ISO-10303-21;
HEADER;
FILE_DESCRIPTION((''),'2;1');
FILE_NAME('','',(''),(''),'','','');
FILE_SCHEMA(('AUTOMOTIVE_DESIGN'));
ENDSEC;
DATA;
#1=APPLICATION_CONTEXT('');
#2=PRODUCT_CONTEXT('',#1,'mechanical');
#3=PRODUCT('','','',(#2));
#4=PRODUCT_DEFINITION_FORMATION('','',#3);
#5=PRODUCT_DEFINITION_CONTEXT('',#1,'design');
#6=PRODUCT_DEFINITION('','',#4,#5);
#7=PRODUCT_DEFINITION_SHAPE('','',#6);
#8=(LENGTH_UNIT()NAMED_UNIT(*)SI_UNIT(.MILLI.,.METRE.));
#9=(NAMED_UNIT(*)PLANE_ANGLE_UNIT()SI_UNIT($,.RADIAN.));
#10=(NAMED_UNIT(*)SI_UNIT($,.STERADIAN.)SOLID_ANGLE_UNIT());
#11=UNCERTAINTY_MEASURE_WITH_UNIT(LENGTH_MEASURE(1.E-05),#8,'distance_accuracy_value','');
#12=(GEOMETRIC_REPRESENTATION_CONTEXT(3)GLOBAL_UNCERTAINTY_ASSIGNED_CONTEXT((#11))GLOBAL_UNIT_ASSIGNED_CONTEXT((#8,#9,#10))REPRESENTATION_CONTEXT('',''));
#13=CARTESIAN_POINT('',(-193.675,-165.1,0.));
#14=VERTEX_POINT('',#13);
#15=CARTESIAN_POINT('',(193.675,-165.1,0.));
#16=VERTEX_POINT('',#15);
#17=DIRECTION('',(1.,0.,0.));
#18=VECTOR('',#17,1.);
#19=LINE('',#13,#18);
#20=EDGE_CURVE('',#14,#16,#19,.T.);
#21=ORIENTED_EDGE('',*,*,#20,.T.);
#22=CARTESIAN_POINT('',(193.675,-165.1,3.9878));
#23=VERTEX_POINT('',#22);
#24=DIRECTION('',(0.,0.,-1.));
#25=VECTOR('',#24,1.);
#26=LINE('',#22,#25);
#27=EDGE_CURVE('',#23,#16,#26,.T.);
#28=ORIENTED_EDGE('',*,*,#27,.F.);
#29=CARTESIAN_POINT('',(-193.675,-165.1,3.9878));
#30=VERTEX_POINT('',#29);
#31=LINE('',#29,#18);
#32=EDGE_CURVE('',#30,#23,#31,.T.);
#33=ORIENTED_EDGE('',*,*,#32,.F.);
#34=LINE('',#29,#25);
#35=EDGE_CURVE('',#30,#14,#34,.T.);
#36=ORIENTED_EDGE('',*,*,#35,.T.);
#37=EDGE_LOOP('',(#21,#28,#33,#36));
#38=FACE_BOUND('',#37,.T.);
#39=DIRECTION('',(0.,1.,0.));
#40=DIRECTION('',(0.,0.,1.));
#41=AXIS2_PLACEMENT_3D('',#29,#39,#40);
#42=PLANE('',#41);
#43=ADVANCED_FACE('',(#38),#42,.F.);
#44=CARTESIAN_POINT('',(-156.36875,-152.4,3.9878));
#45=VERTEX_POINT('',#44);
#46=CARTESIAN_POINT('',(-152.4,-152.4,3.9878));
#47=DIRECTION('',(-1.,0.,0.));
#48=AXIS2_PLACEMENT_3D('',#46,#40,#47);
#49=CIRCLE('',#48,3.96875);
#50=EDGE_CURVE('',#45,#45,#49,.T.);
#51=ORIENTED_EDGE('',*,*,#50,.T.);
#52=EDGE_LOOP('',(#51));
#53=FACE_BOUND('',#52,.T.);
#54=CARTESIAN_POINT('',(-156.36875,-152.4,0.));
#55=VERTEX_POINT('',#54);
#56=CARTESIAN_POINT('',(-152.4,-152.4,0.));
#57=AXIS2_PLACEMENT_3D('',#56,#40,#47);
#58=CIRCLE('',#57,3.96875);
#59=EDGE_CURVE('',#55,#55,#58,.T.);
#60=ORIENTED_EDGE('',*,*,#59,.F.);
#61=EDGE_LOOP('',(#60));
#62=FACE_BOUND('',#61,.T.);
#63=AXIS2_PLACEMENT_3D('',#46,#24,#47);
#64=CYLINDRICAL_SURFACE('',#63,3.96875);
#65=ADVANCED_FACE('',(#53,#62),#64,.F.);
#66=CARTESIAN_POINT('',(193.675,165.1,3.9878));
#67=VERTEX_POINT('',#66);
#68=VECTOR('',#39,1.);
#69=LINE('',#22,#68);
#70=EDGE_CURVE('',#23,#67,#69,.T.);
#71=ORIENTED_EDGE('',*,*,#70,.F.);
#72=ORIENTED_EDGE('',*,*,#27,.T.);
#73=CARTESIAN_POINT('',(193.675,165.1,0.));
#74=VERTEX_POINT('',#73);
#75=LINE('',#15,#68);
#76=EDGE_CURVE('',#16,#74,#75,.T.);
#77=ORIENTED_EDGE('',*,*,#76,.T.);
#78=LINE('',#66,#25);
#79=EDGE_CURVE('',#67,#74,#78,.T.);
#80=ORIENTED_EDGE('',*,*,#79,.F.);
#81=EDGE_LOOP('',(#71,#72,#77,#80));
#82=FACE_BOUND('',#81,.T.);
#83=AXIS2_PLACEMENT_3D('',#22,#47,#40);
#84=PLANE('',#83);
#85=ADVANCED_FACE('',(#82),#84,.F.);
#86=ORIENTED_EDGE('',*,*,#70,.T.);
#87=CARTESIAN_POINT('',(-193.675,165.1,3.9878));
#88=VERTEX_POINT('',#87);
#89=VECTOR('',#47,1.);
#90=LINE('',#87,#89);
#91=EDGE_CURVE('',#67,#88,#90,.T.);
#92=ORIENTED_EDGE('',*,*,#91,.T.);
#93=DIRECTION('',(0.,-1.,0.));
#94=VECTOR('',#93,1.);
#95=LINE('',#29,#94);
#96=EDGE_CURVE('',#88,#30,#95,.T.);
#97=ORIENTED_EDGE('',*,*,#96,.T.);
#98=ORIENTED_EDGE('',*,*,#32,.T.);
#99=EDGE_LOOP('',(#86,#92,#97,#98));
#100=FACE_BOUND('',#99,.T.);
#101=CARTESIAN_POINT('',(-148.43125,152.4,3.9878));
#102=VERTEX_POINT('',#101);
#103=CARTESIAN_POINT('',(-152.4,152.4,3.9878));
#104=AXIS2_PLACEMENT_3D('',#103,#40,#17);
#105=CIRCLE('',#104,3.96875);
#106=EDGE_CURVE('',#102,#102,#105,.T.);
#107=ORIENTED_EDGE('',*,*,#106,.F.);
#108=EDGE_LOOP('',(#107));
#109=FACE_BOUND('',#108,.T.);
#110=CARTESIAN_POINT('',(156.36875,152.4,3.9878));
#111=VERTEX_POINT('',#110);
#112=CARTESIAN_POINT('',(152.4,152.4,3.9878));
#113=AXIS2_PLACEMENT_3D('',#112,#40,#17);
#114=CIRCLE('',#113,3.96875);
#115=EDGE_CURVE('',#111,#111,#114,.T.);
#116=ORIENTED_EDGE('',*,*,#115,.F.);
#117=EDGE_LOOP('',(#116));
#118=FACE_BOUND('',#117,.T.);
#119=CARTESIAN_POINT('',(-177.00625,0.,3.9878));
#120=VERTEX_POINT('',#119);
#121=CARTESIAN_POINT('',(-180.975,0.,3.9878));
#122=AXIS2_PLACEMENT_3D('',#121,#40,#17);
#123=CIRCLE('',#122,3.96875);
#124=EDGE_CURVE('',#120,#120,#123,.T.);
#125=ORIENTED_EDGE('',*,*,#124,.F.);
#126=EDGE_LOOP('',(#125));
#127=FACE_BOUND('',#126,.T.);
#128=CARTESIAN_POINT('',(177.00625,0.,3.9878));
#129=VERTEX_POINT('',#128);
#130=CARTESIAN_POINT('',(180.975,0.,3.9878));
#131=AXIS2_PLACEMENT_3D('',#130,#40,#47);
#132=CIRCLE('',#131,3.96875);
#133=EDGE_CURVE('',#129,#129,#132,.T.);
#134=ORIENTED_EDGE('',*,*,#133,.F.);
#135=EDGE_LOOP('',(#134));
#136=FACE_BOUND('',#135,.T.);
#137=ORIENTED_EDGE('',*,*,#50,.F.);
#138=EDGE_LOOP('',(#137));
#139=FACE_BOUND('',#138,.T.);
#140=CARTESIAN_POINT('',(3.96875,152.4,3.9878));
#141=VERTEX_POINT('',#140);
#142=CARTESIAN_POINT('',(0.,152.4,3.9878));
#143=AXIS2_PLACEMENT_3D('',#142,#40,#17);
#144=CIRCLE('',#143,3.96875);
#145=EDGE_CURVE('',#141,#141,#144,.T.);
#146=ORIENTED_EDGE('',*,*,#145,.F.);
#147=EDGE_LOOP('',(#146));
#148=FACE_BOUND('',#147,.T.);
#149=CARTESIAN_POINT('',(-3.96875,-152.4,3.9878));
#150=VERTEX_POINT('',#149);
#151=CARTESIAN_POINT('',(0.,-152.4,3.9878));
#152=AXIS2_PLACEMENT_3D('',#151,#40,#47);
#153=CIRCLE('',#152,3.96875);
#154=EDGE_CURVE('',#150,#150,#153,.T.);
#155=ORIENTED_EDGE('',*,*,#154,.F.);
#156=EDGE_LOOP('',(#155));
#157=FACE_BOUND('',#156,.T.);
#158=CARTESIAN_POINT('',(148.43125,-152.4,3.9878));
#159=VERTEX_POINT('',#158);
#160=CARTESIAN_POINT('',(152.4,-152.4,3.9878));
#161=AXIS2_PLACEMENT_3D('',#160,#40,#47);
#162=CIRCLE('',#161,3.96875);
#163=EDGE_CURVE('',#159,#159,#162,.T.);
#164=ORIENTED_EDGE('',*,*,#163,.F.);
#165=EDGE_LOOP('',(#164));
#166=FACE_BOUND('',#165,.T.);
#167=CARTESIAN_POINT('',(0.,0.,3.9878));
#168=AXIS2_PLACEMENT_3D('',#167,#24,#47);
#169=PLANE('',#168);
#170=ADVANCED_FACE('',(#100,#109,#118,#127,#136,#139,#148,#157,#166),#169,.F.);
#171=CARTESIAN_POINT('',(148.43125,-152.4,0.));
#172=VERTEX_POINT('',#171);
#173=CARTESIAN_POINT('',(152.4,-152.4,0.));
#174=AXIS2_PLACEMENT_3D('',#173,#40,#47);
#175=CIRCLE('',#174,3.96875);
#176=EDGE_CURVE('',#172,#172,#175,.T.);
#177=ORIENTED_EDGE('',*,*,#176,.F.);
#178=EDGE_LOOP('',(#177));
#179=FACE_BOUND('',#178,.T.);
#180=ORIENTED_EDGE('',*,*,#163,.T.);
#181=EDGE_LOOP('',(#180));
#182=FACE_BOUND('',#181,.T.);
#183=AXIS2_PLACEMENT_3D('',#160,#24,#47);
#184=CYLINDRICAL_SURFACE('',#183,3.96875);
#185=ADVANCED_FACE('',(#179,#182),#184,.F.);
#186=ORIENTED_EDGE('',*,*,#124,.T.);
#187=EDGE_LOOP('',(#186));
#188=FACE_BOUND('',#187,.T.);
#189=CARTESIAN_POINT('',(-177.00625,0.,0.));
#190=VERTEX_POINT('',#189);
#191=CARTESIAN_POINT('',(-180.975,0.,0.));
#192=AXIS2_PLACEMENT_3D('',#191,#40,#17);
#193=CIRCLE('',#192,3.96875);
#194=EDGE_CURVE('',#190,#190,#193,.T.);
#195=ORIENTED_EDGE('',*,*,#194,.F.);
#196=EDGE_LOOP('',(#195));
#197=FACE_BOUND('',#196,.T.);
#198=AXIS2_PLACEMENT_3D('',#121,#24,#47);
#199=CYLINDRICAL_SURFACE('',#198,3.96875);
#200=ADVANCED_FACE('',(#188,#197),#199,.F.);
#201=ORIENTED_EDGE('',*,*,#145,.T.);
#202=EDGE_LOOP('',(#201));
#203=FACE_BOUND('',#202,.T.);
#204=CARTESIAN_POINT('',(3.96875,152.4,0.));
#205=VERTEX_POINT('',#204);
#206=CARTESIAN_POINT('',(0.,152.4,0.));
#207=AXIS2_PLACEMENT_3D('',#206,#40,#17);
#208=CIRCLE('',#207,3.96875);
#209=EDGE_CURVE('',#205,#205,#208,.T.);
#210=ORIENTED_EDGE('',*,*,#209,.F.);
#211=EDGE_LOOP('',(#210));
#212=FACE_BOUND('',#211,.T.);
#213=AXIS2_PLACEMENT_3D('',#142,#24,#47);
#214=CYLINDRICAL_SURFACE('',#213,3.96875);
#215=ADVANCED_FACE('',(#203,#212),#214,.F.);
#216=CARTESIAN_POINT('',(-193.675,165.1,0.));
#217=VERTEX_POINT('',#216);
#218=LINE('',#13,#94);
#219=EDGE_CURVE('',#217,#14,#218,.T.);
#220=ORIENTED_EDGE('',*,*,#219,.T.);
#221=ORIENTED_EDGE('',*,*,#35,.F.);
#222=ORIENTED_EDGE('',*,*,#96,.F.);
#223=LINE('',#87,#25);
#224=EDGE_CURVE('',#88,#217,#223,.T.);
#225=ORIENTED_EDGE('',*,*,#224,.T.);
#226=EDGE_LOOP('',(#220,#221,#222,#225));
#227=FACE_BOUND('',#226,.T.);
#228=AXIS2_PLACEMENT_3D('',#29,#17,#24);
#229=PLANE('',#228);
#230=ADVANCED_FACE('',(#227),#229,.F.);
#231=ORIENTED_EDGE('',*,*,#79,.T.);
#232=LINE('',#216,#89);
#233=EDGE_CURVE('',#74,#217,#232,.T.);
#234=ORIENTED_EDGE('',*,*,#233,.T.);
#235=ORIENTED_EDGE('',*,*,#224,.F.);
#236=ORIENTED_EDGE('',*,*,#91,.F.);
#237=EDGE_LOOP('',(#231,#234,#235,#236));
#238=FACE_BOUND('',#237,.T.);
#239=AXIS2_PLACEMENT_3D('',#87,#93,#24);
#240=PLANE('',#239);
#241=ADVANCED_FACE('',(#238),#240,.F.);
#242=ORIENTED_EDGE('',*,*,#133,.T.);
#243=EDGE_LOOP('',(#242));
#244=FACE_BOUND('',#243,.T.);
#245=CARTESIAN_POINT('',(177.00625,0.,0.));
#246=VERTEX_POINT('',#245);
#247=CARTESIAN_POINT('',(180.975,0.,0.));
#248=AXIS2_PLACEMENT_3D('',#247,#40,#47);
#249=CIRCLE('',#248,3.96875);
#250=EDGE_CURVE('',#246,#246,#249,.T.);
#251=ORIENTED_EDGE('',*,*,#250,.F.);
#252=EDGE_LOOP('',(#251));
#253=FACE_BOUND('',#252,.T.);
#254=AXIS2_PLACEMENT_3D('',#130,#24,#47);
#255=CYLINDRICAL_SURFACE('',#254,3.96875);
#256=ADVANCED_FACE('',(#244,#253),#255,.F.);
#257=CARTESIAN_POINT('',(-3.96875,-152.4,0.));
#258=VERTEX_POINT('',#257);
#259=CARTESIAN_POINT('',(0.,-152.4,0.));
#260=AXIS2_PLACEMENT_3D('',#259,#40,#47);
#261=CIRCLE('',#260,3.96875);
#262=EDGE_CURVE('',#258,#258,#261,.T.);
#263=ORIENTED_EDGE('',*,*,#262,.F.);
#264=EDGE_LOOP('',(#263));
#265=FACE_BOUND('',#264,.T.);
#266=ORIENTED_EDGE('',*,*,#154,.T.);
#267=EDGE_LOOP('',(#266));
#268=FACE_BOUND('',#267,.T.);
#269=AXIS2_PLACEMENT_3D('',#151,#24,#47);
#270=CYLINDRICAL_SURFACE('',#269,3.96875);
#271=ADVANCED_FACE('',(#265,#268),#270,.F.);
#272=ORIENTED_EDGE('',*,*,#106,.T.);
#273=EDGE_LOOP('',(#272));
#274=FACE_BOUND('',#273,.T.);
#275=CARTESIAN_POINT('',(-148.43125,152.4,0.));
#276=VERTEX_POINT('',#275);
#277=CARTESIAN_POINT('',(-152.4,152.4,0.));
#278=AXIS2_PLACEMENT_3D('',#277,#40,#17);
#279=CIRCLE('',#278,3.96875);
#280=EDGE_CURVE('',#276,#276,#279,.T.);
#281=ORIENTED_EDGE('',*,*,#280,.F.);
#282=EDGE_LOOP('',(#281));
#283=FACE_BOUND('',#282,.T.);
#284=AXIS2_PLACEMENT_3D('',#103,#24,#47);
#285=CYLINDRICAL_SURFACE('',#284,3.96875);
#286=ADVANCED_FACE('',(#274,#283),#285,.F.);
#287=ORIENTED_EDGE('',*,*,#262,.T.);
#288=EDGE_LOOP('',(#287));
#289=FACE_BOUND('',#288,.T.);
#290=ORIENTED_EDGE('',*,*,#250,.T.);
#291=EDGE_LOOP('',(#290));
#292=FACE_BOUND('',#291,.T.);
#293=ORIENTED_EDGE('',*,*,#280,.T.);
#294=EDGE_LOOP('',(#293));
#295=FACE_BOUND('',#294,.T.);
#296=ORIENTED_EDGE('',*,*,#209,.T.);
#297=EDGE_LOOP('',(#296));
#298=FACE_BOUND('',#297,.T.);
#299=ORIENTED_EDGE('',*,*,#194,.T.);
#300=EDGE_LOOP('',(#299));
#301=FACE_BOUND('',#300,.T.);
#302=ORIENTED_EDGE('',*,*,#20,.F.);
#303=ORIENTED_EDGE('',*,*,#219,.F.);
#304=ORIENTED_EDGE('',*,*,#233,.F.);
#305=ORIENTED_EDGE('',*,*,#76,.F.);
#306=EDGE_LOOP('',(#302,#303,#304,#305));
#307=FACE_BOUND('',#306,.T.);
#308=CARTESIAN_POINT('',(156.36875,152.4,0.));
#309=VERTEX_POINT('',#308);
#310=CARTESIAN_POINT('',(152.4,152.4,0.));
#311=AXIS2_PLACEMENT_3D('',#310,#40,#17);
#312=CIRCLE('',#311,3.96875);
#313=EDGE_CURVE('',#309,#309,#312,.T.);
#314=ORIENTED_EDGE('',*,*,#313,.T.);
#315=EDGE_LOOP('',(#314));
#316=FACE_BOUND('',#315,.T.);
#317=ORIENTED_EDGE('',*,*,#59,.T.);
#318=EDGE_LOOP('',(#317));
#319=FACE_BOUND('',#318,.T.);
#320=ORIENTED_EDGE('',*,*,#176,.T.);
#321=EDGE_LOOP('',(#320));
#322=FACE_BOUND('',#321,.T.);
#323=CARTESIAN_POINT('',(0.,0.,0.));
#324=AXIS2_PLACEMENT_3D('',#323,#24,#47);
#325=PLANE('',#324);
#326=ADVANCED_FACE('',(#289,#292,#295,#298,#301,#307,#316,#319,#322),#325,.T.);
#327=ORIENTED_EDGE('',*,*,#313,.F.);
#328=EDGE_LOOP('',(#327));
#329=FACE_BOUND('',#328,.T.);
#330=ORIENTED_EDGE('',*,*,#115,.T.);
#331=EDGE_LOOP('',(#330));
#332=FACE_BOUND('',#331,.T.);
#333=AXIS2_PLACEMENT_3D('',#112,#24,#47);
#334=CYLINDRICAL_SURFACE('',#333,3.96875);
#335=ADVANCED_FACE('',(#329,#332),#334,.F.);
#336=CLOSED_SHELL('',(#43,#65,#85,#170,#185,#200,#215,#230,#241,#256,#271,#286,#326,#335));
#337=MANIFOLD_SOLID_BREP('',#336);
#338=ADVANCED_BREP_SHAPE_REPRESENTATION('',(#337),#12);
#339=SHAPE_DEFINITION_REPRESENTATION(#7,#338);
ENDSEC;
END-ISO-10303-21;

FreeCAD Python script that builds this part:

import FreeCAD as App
import Part
import Sketcher

V = App.Vector
Q = App.Units.Quantity


def add_polygon(sketch, points):
    """Adds a closed chain of lines whose ends are joined by coincident constraints."""
    first, n = sketch.GeometryCount, len(points)
    for a, b in zip(points, points[1:] + points[:1]):
        sketch.addGeometry(Part.LineSegment(App.Vector(*a, 0), App.Vector(*b, 0)), False)
    for i in range(n):
        sketch.addConstraint(Sketcher.Constraint("Coincident", first + i, 2, first + (i + 1) % n, 1))

doc = App.newDocument("Part")
body = doc.addObject("PartDesign::Body", "Body")

sketch1 = body.newObject("Sketcher::SketchObject", "Sketch")
sketch1.AttachmentSupport = (doc.getObject("XY_Plane"), [""])
sketch1.MapMode = "FlatFace"
add_polygon(sketch1, [(-193.7, 165.1), (-193.7, -165.1), (193.7, -165.1), (193.7, 165.1)])
sketch1.addGeometry(Part.Circle(V(-152.4, -152.4, 0), V(0, 0, 1), 4), False)
sketch1.addGeometry(Part.Circle(V(0, -152.4, 0), V(0, 0, 1), 4), False)
sketch1.addGeometry(Part.Circle(V(152.4, -152.4, 0), V(0, 0, 1), 4), False)
sketch1.addGeometry(Part.Circle(V(-181, 0, 0), V(0, 0, 1), 4), False)
sketch1.addGeometry(Part.Circle(V(-152.4, 152.4, 0), V(0, 0, 1), 4), False)
sketch1.addGeometry(Part.Circle(V(181, 0, 0), V(0, 0, 1), 4), False)
sketch1.addGeometry(Part.Circle(V(0, 152.4, 0), V(0, 0, 1), 4), False)
sketch1.addGeometry(Part.Circle(V(152.4, 152.4, 0), V(0, 0, 1), 4), False)
sketch1.addConstraint(Sketcher.Constraint("Vertical", 0))
sketch1.addConstraint(Sketcher.Constraint("Horizontal", 1))
sketch1.addConstraint(Sketcher.Constraint("Vertical", 2))
sketch1.addConstraint(Sketcher.Constraint("Horizontal", 3))
sketch1.addConstraint(Sketcher.Constraint("Equal", 4, 5))
sketch1.addConstraint(Sketcher.Constraint("Equal", 5, 6))
sketch1.addConstraint(Sketcher.Constraint("Equal", 6, 7))
sketch1.addConstraint(Sketcher.Constraint("Equal", 7, 8))
sketch1.addConstraint(Sketcher.Constraint("Equal", 8, 9))
sketch1.addConstraint(Sketcher.Constraint("Equal", 9, 10))
sketch1.addConstraint(Sketcher.Constraint("Equal", 10, 11))
sketch1.addConstraint(Sketcher.Constraint("Symmetric", 6, 3, 8, 3, -1, 1))
sketch1.addConstraint(Sketcher.Constraint("Symmetric", 7, 3, 9, 3, -1, 1))
sketch1.addConstraint(Sketcher.Constraint("Symmetric", 5, 3, 10, 3, -1, 1))
sketch1.addConstraint(Sketcher.Constraint("Symmetric", 4, 3, 11, 3, -1, 1))
sketch1.addConstraint(Sketcher.Constraint("Symmetric", 0, 2, 2, 2, -1, 1))
sketch1.addConstraint(Sketcher.Constraint("Symmetric", 4, 3, 6, 3, -2))
sketch1.addConstraint(Sketcher.Constraint("PointOnObject", 5, 3, -2))
sketch1.addConstraint(Sketcher.Constraint("PointOnObject", 7, 3, -1))
sketch1.addConstraint(Sketcher.Constraint("Horizontal", 4, 3, 5, 3))
sketch1.addConstraint(Sketcher.Constraint("DistanceY", 0, 2, 0, 1, Q("13 in")))
sketch1.addConstraint(Sketcher.Constraint("Diameter", 4, Q("0.3125 in")))
sketch1.addConstraint(Sketcher.Constraint("DistanceX", 4, 3, -1, 1, Q("6 in")))
sketch1.addConstraint(Sketcher.Constraint("DistanceY", 4, 3, -1, 1, Q("6 in")))
sketch1.addConstraint(Sketcher.Constraint("DistanceX", 1, 1, 1, 2, Q("15.25 in")))
sketch1.addConstraint(Sketcher.Constraint("DistanceX", 0, 2, 7, 3, Q("0.5 in")))
pad1 = body.newObject("PartDesign::Pad", "Pad")
pad1.Profile = sketch1
pad1.Length = Q("0.157 in")

doc.recompute()
